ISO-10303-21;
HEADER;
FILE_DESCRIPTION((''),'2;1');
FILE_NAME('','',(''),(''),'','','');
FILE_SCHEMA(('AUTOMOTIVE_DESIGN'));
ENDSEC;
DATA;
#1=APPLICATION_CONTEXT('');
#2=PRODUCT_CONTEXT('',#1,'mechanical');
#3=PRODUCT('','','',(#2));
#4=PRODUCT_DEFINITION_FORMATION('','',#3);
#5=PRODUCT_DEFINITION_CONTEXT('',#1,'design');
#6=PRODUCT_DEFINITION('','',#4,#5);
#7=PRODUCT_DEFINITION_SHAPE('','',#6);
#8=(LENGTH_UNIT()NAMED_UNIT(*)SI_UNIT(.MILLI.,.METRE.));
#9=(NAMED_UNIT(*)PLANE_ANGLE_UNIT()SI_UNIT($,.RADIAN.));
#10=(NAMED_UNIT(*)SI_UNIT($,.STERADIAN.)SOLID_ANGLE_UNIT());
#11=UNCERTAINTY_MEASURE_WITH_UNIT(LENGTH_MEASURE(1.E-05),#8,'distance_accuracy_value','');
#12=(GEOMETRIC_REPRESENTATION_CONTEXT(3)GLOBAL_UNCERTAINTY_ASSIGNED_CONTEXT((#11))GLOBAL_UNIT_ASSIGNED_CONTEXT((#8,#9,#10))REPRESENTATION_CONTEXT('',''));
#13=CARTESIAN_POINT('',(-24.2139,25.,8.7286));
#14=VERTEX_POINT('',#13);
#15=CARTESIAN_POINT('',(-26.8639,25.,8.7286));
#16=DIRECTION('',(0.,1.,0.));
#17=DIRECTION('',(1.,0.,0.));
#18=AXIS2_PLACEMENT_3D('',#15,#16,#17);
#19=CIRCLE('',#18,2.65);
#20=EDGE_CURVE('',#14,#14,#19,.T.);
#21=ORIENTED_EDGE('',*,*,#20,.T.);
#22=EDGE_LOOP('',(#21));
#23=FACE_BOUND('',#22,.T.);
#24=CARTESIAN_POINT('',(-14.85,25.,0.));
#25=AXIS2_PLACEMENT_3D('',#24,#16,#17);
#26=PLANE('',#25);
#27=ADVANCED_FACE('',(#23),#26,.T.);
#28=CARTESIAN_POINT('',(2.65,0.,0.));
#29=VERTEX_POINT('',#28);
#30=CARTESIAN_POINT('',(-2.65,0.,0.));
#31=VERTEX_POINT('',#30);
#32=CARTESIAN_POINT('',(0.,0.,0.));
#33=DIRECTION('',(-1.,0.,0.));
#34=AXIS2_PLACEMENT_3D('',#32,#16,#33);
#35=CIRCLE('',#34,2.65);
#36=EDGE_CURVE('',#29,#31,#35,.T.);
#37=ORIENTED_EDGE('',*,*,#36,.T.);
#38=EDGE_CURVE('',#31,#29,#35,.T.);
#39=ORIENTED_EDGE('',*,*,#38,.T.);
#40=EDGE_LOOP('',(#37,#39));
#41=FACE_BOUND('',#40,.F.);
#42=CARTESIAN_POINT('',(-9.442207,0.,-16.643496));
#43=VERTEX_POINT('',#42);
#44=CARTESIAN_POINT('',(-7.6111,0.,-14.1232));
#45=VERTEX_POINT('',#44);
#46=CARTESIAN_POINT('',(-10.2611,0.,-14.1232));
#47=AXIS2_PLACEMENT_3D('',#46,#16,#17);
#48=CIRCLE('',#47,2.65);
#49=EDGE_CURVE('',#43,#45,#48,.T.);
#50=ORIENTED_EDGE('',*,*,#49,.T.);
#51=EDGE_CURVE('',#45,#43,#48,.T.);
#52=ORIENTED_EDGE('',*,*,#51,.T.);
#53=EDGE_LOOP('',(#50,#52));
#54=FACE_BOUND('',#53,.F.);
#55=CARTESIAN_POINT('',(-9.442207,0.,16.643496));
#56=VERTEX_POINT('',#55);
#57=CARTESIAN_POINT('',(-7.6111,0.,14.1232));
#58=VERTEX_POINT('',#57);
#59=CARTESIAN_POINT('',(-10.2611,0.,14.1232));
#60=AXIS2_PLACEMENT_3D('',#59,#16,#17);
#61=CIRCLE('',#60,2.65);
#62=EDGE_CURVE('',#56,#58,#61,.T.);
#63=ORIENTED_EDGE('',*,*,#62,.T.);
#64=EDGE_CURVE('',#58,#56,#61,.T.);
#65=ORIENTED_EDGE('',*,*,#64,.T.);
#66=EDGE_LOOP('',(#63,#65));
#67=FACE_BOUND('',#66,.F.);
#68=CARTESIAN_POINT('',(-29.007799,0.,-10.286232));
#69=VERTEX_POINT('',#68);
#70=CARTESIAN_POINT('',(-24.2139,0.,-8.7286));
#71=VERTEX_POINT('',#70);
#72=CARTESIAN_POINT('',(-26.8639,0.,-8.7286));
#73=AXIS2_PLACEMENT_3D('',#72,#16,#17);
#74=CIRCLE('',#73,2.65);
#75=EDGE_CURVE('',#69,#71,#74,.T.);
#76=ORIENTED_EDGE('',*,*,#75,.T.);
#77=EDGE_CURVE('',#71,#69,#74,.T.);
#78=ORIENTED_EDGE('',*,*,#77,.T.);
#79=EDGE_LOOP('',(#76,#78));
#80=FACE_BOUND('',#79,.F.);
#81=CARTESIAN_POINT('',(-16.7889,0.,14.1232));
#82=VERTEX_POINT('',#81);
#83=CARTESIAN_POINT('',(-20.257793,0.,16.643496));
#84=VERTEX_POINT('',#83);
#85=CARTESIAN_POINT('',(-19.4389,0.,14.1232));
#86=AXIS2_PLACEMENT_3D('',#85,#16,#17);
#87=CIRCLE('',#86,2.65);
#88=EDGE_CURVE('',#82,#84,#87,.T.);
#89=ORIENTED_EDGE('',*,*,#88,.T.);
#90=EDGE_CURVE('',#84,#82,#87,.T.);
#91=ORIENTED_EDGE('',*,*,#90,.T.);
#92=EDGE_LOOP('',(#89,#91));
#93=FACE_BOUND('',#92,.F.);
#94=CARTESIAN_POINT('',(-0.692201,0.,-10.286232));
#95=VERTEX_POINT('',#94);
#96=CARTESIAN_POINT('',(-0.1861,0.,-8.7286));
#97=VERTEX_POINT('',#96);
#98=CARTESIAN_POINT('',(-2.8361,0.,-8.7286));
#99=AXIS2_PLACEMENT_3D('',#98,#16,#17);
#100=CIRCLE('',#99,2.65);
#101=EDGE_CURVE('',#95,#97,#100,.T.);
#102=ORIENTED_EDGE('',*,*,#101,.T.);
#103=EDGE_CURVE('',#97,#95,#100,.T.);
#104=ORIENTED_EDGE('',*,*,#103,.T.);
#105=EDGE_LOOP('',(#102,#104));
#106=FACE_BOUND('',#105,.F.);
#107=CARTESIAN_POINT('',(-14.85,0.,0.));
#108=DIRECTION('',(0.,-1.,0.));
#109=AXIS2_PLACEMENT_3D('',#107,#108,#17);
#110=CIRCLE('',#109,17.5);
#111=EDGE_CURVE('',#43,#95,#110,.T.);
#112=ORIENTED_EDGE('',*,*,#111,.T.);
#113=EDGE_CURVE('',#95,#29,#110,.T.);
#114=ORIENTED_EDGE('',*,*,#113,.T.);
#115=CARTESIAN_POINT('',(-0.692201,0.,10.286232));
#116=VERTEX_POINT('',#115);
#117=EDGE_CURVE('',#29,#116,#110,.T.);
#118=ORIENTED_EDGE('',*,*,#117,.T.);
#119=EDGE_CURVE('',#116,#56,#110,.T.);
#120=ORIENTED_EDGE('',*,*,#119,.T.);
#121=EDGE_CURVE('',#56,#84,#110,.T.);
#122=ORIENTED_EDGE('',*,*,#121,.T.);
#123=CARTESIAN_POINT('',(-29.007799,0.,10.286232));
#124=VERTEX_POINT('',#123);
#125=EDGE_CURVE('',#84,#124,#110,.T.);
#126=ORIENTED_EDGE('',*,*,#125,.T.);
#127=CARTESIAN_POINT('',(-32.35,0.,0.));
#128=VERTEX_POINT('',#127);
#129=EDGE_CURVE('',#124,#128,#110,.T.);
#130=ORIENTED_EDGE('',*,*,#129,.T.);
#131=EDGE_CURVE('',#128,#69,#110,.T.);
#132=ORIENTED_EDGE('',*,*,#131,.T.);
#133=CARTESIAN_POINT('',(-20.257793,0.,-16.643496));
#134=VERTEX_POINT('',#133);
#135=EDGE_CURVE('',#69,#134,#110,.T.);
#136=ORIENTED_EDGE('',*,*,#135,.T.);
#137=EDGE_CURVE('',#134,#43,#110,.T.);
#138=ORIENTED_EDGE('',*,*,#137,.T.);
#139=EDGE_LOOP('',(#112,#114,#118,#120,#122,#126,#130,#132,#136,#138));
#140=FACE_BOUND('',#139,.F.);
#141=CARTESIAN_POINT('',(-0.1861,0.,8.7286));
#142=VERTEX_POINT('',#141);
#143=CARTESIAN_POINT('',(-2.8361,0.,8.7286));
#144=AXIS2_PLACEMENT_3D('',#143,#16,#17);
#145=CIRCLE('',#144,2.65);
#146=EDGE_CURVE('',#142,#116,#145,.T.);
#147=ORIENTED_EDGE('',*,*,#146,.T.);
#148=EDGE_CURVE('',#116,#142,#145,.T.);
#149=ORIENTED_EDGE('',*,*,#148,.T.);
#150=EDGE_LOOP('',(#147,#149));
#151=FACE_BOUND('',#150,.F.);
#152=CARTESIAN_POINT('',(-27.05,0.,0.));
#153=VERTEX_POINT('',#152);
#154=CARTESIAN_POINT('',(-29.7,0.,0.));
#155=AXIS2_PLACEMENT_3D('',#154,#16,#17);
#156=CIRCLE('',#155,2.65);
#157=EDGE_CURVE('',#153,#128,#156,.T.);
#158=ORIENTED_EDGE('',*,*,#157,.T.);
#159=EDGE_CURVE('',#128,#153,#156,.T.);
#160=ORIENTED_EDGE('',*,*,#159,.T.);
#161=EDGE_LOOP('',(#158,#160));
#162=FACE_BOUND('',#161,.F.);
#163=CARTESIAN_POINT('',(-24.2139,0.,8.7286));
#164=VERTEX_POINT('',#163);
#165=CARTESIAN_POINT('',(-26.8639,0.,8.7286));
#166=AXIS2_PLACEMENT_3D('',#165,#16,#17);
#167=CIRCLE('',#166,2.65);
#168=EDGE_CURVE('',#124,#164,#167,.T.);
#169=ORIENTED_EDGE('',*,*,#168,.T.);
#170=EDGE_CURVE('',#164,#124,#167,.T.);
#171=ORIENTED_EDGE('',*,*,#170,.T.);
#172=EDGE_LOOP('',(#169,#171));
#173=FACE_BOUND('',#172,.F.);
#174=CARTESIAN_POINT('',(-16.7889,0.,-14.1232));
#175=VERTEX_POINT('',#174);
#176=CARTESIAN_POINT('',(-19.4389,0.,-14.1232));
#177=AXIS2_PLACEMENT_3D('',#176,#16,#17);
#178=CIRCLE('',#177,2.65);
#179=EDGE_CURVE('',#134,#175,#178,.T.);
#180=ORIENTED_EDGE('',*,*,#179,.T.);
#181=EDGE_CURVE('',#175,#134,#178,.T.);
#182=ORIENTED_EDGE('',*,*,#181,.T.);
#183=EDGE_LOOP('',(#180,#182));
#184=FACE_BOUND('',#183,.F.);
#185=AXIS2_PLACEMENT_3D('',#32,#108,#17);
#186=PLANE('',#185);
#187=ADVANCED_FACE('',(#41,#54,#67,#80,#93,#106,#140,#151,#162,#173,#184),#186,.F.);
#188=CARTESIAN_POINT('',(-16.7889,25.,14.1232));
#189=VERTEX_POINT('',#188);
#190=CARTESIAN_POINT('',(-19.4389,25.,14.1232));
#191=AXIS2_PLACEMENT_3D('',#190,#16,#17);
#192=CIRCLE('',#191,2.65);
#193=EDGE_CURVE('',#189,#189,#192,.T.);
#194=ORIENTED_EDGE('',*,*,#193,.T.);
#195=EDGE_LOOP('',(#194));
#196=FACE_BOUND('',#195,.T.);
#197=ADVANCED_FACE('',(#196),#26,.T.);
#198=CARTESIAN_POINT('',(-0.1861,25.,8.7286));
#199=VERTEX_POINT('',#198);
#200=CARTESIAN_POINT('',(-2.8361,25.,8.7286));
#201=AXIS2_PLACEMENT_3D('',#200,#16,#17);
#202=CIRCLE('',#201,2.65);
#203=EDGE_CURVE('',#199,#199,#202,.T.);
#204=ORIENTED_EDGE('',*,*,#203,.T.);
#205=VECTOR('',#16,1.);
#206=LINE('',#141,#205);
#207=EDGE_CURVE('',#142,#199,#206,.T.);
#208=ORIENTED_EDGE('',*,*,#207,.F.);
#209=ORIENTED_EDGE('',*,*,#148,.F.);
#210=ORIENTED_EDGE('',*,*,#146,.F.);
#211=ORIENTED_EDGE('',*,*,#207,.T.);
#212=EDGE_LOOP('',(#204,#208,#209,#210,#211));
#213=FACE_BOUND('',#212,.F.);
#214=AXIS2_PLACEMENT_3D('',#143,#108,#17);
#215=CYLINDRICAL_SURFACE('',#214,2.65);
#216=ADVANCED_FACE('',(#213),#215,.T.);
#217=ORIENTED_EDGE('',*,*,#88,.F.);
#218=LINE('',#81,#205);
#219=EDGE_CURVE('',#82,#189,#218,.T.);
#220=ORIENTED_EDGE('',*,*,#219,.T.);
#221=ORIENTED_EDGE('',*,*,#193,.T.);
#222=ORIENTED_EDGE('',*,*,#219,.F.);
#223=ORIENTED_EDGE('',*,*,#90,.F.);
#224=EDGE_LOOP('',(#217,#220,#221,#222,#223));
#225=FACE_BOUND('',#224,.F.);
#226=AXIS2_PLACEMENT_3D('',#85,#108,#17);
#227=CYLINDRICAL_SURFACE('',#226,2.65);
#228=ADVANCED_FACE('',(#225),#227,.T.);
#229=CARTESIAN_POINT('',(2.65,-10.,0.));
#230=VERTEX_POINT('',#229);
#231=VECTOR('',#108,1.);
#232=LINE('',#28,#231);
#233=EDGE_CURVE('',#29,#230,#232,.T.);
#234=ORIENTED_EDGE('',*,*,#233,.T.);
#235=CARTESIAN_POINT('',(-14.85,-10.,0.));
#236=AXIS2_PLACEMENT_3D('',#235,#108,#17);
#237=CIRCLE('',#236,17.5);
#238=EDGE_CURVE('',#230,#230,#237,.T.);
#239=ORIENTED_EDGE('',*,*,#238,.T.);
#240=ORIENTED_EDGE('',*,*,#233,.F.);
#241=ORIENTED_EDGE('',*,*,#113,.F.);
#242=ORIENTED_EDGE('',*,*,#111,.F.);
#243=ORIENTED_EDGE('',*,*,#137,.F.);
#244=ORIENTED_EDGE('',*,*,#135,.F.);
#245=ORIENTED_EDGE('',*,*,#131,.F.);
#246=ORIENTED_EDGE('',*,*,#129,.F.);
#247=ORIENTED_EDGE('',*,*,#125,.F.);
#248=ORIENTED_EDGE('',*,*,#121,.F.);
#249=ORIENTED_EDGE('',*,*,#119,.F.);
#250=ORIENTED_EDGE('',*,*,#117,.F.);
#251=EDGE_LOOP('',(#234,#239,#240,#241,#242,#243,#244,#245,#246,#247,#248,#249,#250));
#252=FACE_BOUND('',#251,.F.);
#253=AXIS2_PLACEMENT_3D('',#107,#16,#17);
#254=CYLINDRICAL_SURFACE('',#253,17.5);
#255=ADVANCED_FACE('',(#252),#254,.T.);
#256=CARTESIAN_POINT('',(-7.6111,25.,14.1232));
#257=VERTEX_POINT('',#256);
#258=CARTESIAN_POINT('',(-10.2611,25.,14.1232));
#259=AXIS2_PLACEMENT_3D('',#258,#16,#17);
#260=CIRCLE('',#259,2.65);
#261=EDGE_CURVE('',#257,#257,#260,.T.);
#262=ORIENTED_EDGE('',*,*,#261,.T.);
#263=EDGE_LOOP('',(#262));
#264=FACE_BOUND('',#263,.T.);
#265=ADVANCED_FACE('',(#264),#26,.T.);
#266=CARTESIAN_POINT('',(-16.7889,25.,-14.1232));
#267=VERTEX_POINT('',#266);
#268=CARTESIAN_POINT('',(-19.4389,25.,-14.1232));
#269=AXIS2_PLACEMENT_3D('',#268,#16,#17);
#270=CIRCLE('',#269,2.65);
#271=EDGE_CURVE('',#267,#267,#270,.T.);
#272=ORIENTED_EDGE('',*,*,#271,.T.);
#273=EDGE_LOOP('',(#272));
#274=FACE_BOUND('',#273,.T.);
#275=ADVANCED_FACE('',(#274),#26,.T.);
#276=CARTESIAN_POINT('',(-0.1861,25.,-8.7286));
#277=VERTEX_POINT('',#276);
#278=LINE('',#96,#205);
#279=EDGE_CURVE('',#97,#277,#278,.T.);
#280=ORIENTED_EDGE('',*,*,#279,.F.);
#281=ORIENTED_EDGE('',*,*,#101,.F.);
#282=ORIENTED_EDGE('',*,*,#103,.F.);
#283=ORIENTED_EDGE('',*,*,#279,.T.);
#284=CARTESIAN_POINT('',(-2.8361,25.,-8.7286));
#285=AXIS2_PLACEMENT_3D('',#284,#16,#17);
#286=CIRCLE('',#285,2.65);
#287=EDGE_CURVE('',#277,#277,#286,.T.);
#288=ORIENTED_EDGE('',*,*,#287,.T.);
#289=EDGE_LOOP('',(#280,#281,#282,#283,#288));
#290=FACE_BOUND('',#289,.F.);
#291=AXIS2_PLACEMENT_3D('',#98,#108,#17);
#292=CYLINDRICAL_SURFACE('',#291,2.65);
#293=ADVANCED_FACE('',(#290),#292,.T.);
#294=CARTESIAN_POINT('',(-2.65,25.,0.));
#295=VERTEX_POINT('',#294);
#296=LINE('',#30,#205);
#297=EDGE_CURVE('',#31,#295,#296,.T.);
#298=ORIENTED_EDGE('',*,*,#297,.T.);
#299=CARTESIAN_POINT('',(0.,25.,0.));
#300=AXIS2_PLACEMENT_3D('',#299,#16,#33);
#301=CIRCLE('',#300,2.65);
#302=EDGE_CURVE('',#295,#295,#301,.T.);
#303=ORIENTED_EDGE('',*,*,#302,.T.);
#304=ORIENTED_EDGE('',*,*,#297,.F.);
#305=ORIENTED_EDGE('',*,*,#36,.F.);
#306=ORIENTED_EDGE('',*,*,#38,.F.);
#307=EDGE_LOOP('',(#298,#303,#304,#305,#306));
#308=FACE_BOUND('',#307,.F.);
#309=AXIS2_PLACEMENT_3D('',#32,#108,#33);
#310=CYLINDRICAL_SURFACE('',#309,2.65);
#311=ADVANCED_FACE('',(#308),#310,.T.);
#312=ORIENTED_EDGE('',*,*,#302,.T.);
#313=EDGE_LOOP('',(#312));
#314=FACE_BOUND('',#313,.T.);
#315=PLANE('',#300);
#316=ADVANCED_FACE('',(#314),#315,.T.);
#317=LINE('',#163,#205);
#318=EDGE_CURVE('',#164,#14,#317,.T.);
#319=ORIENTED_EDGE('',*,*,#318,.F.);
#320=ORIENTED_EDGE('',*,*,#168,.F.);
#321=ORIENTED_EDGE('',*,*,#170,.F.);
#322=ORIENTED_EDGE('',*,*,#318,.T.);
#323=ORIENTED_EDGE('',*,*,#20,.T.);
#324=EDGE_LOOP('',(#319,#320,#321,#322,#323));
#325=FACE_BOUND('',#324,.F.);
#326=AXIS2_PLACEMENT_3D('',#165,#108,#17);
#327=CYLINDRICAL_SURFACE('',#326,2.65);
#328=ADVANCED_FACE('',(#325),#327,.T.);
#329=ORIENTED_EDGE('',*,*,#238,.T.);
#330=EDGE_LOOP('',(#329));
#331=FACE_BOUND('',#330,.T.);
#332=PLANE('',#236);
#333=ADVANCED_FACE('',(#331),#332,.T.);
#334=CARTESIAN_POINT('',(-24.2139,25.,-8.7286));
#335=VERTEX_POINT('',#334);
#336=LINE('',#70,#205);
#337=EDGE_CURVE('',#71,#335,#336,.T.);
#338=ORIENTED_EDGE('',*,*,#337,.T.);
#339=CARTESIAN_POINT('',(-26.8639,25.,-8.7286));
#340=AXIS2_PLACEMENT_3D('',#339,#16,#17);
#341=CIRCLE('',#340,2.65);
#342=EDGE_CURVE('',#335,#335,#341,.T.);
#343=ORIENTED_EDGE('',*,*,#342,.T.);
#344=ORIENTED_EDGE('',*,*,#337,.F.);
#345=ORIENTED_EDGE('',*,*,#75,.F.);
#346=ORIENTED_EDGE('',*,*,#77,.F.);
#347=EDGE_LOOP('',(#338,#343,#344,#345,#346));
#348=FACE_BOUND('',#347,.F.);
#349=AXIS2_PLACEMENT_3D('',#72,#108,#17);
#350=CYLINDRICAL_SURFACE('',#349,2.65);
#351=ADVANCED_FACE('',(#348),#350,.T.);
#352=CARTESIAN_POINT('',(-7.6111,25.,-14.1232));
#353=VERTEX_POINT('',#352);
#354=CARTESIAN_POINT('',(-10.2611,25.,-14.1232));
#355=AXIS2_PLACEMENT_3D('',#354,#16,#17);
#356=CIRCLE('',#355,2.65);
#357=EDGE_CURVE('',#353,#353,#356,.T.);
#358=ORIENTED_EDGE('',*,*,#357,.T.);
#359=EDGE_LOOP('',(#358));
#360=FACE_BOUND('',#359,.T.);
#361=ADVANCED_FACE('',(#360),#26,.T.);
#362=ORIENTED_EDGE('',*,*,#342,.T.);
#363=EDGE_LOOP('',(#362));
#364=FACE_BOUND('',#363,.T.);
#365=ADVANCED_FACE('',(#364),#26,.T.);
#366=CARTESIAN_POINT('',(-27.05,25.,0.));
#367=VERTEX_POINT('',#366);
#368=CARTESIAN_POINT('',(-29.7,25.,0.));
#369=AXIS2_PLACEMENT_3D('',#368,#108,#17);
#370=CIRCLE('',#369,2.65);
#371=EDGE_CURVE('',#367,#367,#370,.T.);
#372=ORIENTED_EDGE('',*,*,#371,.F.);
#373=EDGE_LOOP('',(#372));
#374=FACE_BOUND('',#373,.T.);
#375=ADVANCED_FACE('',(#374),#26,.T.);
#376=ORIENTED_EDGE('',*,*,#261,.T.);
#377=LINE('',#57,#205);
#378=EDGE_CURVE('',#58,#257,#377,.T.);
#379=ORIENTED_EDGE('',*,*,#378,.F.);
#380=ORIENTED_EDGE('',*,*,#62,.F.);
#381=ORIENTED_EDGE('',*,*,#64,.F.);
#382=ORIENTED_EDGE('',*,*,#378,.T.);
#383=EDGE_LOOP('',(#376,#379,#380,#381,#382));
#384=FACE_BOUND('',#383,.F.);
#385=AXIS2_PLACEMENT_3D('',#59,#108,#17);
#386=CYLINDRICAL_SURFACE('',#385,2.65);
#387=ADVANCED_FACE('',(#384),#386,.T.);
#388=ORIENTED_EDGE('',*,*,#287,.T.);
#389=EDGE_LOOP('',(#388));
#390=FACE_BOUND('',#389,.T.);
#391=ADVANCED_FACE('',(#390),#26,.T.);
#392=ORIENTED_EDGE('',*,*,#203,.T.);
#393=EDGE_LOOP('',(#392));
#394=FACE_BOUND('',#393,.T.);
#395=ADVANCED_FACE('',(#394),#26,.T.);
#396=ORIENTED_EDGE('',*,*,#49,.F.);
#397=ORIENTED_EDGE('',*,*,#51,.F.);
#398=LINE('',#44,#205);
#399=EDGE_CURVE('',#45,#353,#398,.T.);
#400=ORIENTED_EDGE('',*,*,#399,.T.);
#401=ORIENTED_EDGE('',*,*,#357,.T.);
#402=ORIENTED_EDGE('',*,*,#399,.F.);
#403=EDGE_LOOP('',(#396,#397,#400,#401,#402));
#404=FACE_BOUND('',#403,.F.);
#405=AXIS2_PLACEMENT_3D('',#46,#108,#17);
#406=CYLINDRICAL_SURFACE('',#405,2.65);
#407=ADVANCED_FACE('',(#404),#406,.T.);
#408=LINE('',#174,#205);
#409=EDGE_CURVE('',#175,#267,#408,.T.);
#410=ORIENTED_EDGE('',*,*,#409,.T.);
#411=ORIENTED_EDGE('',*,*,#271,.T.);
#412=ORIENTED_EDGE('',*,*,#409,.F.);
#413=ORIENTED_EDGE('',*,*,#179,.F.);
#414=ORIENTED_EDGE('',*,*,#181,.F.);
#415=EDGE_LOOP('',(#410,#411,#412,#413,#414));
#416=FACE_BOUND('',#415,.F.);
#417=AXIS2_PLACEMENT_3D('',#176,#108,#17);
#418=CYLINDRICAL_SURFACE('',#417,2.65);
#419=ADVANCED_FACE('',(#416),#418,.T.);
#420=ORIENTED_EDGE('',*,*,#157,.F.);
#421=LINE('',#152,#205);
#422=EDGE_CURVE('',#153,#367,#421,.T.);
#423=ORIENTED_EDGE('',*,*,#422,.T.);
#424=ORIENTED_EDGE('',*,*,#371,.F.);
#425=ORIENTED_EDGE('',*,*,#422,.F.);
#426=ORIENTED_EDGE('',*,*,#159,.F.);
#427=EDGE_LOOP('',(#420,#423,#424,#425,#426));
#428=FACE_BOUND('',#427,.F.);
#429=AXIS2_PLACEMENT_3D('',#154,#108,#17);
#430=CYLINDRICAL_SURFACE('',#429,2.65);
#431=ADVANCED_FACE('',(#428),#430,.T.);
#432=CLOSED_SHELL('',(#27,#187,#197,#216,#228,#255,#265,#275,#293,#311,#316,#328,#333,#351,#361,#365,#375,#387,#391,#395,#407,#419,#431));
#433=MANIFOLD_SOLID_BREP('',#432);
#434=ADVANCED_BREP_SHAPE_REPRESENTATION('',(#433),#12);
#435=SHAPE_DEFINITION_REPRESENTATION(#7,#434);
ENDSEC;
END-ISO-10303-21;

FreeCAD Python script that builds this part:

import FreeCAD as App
import Part
import Sketcher

V = App.Vector
Q = App.Units.Quantity

doc = App.newDocument("Part")
body = doc.addObject("PartDesign::Body", "Body")
body.AllowCompound = True

sketch1 = body.newObject("Sketcher::SketchObject", "Sketch")
sketch1.AttachmentSupport = (doc.getObject("XZ_Plane"), [""])
sketch1.MapMode = "FlatFace"
sketch1.addGeometry(Part.Circle(V(0, 0, 0), V(0, 0, 1), 2.6), False)
sketch1.addConstraint(Sketcher.Constraint("Coincident", 0, 3, -1, 1))
sketch1.addConstraint(Sketcher.Constraint("Diameter", 0, Q("5.3 mm")))
pad1 = body.newObject("PartDesign::Pad", "Pad")
pad1.Profile = sketch1
pad1.Length = 25
pad1.Reversed = True

sketch2 = body.newObject("Sketcher::SketchObject", "Sketch001")
sketch2.AttachmentSupport = (doc.getObject("XZ_Plane"), [""])
sketch2.MapMode = "FlatFace"
sketch2.addGeometry(Part.Circle(V(-14.8, 0, 0), V(0, 0, 1), 17.5), False)
sketch2.addGeometry(Part.Circle(V(0, 0, 0), V(0, 0, 1), 2.6), False)
sketch2.addConstraint(Sketcher.Constraint("Coincident", 1, 3, -1, 1))
sketch2.addConstraint(Sketcher.Constraint("PointOnObject", 0, 3, -1))
sketch2.addConstraint(Sketcher.Constraint("Diameter", 0, Q("35 mm")))
sketch2.addConstraint(Sketcher.Constraint("Diameter", 1, Q("5.3 mm")))
sketch2.addConstraint(Sketcher.Constraint("DistanceX", 0, 3, -1, 1, Q("14.85 mm")))
pad2 = body.newObject("PartDesign::Pad", "Pad001")
pad2.Profile = sketch2
pad2.Length = 10

sketch3 = body.newObject("Sketcher::SketchObject", "Sketch002")
sketch3.AttachmentSupport = (doc.getObject("XZ_Plane"), [""])
sketch3.MapMode = "FlatFace"
sketch3.addGeometry(Part.Circle(V(-26.9, -8.7, 0), V(0, 0, 1), 2.6), False)
sketch3.addGeometry(Part.Circle(V(-29.7, 0, 0), V(0, 0, 1), 2.6), False)
sketch3.addGeometry(Part.Circle(V(-19.4, -14.1, 0), V(0, 0, 1), 2.6), False)
sketch3.addGeometry(Part.Circle(V(-2.8, -8.7, 0), V(0, 0, 1), 2.6), False)
sketch3.addGeometry(Part.Circle(V(-10.3, -14.1, 0), V(0, 0, 1), 2.6), False)
sketch3.addGeometry(Part.Circle(V(-26.9, 8.7, 0), V(0, 0, 1), 2.6), False)
sketch3.addGeometry(Part.Circle(V(-19.4, 14.1, 0), V(0, 0, 1), 2.6), False)
sketch3.addGeometry(Part.Circle(V(-10.3, 14.1, 0), V(0, 0, 1), 2.6), False)
sketch3.addGeometry(Part.Circle(V(-2.8, 8.7, 0), V(0, 0, 1), 2.6), False)
sketch3.addConstraint(Sketcher.Constraint("Equal", 0, 1))
sketch3.addConstraint(Sketcher.Constraint("Equal", 1, 2))
sketch3.addConstraint(Sketcher.Constraint("Equal", 2, 3))
sketch3.addConstraint(Sketcher.Constraint("Equal", 3, 4))
sketch3.addConstraint(Sketcher.Constraint("Equal", 4, 5))
sketch3.addConstraint(Sketcher.Constraint("Equal", 5, 6))
sketch3.addConstraint(Sketcher.Constraint("Equal", 6, 7))
sketch3.addConstraint(Sketcher.Constraint("Equal", 7, 8))
sketch3.addConstraint(Sketcher.Constraint("Symmetric", 0, 3, 5, 3, -1))
sketch3.addConstraint(Sketcher.Constraint("Symmetric", 2, 3, 6, 3, -1))
sketch3.addConstraint(Sketcher.Constraint("Symmetric", 4, 3, 7, 3, -1))
sketch3.addConstraint(Sketcher.Constraint("Symmetric", 3, 3, 8, 3, -1))
sketch3.addConstraint(Sketcher.Constraint("PointOnObject", 1, 3, -1))
sketch3.addConstraint(Sketcher.Constraint("Horizontal", 0, 3, 3, 3))
sketch3.addConstraint(Sketcher.Constraint("Horizontal", 2, 3, 4, 3))
sketch3.addConstraint(Sketcher.Constraint("Diameter", 0, Q("5.3 mm")))
sketch3.addConstraint(Sketcher.Constraint("DistanceX", 1, 3, -1, 1, Q("29.7 mm")))
sketch3.addConstraint(Sketcher.Constraint("DistanceX", 0, 3, -1, 1, Q("26.864 mm")))
sketch3.addConstraint(Sketcher.Constraint("DistanceX", 2, 3, -1, 1, Q("19.439 mm")))
sketch3.addConstraint(Sketcher.Constraint("DistanceX", 3, 3, -1, 1, Q("2.836 mm")))
sketch3.addConstraint(Sketcher.Constraint("DistanceX", 4, 3, -1, 1, Q("10.261 mm")))
sketch3.addConstraint(Sketcher.Constraint("DistanceY", 0, 3, -1, 1, Q("8.7286 mm")))
sketch3.addConstraint(Sketcher.Constraint("DistanceY", 2, 3, -1, 1, Q("14.1232 mm")))
pad3 = body.newObject("PartDesign::Pad", "Pad002")
pad3.Profile = sketch3
pad3.Length = 25
pad3.Reversed = True

sketch4 = body.newObject("Sketcher::SketchObject", "Sketch003")
sketch4.AttachmentSupport = (doc.getObject("XZ_Plane"), [""])
sketch4.MapMode = "FlatFace"
sketch4.AttachmentOffset = App.Placement(V(0, 0, 10), App.Rotation())
sketch4.addGeometry(Part.Circle(V(0, 0, 0), V(0, 0, 1), 2.6), False)
sketch4.addConstraint(Sketcher.Constraint("Coincident", 0, 3, -1, 1))
sketch4.addConstraint(Sketcher.Constraint("Diameter", 0, Q("5.3 mm")))
pad4 = body.newObject("PartDesign::Pad", "Pad003")
pad4.Profile = sketch4
pad4.Length = 10
pad4.Reversed = True

doc.recompute()
